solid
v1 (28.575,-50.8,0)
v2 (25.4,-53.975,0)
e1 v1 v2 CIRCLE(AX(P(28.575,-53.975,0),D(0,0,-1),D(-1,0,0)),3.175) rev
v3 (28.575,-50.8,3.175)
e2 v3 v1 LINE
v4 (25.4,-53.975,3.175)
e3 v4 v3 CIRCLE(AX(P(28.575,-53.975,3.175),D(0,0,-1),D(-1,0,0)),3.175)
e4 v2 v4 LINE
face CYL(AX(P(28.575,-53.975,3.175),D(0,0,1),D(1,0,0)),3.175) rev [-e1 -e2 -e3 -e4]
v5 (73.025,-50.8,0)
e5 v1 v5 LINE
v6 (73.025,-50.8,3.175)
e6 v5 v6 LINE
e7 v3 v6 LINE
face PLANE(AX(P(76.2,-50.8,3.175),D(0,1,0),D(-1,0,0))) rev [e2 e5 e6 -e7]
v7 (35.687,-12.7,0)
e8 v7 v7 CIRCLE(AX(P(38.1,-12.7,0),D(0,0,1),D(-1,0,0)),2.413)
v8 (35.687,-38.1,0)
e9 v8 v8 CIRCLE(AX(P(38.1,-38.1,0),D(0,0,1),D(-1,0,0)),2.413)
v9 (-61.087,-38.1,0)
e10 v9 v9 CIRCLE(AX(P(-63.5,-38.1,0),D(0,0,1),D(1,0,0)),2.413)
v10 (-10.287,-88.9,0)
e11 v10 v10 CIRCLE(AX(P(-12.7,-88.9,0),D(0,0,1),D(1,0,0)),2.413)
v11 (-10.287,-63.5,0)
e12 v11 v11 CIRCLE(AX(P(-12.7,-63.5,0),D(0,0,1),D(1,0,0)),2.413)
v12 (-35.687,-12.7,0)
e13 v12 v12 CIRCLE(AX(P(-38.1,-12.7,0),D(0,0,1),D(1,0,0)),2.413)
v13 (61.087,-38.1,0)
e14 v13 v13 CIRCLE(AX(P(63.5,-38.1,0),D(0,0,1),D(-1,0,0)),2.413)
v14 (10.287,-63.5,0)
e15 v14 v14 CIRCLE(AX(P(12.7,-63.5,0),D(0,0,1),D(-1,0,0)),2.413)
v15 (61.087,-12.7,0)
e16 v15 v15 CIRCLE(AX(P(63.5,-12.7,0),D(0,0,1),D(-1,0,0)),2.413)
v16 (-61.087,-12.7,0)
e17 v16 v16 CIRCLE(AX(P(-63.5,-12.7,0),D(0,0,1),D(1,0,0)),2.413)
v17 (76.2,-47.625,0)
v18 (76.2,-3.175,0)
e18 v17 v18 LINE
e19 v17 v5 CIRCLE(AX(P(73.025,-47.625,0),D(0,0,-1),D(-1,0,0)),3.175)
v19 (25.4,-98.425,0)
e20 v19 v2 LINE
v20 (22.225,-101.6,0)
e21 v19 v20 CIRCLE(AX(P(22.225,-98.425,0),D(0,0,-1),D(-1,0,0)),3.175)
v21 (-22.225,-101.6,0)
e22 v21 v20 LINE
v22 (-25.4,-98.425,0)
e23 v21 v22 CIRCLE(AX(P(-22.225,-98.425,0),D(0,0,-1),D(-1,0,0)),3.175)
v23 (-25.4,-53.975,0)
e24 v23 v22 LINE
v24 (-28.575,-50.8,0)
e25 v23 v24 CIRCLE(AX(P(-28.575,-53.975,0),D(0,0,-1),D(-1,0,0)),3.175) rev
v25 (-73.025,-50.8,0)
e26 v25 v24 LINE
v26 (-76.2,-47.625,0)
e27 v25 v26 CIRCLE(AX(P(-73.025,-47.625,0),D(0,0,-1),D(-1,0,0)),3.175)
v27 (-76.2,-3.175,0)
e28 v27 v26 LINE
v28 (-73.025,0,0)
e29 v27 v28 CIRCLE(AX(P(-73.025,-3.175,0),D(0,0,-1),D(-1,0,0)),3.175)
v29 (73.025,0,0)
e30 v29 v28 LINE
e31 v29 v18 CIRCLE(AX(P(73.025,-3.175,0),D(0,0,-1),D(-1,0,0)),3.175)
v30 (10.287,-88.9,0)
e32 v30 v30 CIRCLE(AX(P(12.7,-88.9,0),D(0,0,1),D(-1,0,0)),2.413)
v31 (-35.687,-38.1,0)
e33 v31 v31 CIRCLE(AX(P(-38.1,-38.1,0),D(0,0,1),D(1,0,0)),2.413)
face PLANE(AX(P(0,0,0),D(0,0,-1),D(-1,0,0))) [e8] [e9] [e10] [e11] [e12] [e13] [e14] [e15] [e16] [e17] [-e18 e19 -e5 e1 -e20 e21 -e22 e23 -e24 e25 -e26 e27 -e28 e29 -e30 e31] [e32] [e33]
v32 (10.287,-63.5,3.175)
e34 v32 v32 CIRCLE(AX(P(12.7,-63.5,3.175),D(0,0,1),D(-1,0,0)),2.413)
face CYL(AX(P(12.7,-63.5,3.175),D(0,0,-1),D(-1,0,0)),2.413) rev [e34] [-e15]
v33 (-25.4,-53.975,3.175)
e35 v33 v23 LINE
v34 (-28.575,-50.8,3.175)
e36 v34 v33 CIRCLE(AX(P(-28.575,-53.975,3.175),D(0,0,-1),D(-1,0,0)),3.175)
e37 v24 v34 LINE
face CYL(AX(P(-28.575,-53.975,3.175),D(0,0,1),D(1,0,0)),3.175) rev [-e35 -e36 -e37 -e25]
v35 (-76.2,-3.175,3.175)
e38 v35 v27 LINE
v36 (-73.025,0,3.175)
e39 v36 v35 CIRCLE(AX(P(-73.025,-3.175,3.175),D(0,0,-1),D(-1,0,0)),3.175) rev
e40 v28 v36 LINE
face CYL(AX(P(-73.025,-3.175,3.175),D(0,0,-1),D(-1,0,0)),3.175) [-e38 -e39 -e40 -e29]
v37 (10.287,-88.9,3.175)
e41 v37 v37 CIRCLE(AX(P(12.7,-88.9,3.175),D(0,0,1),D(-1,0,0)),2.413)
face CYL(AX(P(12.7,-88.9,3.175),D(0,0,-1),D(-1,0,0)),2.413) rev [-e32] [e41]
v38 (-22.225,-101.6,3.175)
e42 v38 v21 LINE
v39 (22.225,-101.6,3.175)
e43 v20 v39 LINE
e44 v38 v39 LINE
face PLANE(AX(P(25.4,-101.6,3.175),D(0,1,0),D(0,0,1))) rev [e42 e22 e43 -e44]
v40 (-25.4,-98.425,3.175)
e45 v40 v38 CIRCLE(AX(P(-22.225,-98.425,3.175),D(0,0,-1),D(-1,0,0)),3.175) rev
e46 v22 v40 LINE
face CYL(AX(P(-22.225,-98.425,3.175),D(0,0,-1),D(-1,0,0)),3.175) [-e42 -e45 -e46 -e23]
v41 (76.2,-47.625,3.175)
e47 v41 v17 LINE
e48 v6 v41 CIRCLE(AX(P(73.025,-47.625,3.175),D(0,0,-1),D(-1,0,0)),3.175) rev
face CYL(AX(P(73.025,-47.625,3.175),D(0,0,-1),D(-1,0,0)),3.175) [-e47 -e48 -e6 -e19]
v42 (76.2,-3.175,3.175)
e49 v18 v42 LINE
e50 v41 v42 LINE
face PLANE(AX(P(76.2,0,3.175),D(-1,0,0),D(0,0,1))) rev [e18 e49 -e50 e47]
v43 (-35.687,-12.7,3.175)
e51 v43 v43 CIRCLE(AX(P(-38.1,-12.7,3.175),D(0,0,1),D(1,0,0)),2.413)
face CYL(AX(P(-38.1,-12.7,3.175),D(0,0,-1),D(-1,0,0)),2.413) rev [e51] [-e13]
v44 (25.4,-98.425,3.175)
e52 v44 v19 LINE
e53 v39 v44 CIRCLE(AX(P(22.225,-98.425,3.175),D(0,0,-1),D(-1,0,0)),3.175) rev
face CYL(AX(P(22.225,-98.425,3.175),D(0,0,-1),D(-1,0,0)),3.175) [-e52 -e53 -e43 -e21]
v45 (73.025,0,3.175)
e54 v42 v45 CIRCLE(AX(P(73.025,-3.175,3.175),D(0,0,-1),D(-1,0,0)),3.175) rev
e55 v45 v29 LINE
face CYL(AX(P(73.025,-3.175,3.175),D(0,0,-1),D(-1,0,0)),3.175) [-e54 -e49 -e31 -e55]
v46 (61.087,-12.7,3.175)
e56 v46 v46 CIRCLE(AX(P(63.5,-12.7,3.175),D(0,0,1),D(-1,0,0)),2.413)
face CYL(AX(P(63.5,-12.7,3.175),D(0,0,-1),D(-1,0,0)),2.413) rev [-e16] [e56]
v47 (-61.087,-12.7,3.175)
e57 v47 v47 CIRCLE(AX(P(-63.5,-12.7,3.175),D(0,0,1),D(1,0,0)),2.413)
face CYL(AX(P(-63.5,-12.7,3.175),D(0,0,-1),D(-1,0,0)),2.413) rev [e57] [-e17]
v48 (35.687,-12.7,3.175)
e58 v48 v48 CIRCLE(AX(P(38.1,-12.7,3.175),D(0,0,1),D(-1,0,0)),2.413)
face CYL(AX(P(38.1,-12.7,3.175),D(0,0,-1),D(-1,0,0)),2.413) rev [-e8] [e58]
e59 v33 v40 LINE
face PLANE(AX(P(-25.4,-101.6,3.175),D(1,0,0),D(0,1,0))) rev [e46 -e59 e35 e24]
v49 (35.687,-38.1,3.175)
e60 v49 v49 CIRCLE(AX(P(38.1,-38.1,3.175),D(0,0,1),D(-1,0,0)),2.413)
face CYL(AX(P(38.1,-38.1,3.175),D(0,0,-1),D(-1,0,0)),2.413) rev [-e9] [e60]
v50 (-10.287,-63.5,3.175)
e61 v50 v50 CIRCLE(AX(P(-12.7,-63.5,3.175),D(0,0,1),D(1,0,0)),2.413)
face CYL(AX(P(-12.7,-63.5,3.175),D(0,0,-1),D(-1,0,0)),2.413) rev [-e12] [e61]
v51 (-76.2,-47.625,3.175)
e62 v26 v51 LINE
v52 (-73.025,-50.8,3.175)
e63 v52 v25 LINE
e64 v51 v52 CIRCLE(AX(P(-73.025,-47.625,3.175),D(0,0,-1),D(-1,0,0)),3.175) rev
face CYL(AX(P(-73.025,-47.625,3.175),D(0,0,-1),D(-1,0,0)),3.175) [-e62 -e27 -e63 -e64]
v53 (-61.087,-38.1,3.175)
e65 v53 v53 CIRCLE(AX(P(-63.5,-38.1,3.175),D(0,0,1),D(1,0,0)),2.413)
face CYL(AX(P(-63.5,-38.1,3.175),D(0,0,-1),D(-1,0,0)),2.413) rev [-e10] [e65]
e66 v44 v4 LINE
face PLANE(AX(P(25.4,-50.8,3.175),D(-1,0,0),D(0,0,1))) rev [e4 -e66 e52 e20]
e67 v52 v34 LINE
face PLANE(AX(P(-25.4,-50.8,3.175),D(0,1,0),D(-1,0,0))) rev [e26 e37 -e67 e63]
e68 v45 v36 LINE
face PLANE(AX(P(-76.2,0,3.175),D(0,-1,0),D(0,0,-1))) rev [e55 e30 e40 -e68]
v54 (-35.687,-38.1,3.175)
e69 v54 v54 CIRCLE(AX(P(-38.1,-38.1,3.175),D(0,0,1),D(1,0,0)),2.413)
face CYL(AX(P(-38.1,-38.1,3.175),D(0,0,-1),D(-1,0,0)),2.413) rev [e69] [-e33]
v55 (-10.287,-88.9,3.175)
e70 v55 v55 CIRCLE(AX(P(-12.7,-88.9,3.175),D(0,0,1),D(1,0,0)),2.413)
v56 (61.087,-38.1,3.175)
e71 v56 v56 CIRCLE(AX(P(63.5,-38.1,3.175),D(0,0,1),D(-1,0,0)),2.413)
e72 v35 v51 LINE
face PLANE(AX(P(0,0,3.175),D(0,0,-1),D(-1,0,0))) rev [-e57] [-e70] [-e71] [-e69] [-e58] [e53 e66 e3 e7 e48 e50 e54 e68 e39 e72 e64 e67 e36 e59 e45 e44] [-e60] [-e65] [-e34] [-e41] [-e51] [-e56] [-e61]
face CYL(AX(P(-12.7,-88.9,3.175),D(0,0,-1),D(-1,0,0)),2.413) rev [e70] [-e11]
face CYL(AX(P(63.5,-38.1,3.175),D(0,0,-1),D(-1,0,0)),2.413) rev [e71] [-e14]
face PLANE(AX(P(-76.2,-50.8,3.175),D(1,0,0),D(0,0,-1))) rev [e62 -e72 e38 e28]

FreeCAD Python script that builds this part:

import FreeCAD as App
import Part
import Sketcher
Q = App.Units.Quantity


def edges_at(feature, points):
    """Names of the edges that pass closest to the given points."""
    edges = feature.Shape.Edges
    near = lambda p: min(range(len(edges)), key=lambda i: edges[i].distToShape(Part.Vertex(*p))[0])
    return sorted({f"Edge{near(p) + 1}" for p in points})


def add_polygon(sketch, points):
    """Adds a closed chain of lines whose ends are joined by coincident constraints."""
    first, n = sketch.GeometryCount, len(points)
    for a, b in zip(points, points[1:] + points[:1]):
        sketch.addGeometry(Part.LineSegment(App.Vector(*a, 0), App.Vector(*b, 0)), False)
    for i in range(n):
        sketch.addConstraint(Sketcher.Constraint("Coincident", first + i, 2, first + (i + 1) % n, 1))

doc = App.newDocument("Part")
params = doc.addObject("Spreadsheet::Sheet", "Params")
for row, (alias, value) in enumerate([
    ("sketch1_diameter", "0.19 in"),
    ("sketch1_width", "6 in"),
    ("pad1_length", "0.125 in"),
    ("fillet_radius", "0.125 in"),
], start=1):
    params.set(f"A{row}", alias)
    params.set(f"B{row}", "=" + value)
    params.setAlias(f"B{row}", alias)

body = doc.addObject("PartDesign::Body", "Body")

# Sketch on XY plane
sketch1 = body.newObject("Sketcher::SketchObject", "Sketch")
sketch1.AttachmentSupport = (doc.getObject("XY_Plane"), [""])
sketch1.MapMode = "FlatFace"
add_polygon(sketch1, [(76.2, 0), (-76.2, 0), (-76.2, -50.8), (-25.4, -50.8), (-25.4, -101.6), (25.4, -101.6), (25.4, -50.8), (76.2, -50.8)])  # lines 0-7
sketch1.addGeometry(Part.Circle(App.Vector(12.7, -88.9, 0), App.Vector(0, 0, 1), 2.4), False)  # 8
sketch1.addGeometry(Part.Circle(App.Vector(12.7, -63.5, 0), App.Vector(0, 0, 1), 2.4), False)  # 9
sketch1.addGeometry(Part.Circle(App.Vector(-12.7, -88.9, 0), App.Vector(0, 0, 1), 2.4), False)  # 10
sketch1.addGeometry(Part.Circle(App.Vector(-12.7, -63.5, 0), App.Vector(0, 0, 1), 2.4), False)  # 11
sketch1.addGeometry(Part.Circle(App.Vector(63.5, -38.1, 0), App.Vector(0, 0, 1), 2.4), False)  # 12
sketch1.addGeometry(Part.Circle(App.Vector(38.1, -38.1, 0), App.Vector(0, 0, 1), 2.4), False)  # 13
sketch1.addGeometry(Part.Circle(App.Vector(63.5, -12.7, 0), App.Vector(0, 0, 1), 2.4), False)  # 14
sketch1.addGeometry(Part.Circle(App.Vector(38.1, -12.7, 0), App.Vector(0, 0, 1), 2.4), False)  # 15
sketch1.addGeometry(Part.Circle(App.Vector(-38.1, -38.1, 0), App.Vector(0, 0, 1), 2.4), False)  # 16
sketch1.addGeometry(Part.Circle(App.Vector(-63.5, -38.1, 0), App.Vector(0, 0, 1), 2.4), False)  # 17
sketch1.addGeometry(Part.Circle(App.Vector(-38.1, -12.7, 0), App.Vector(0, 0, 1), 2.4), False)  # 18
sketch1.addGeometry(Part.Circle(App.Vector(-63.5, -12.7, 0), App.Vector(0, 0, 1), 2.4), False)  # 19
sketch1.addConstraint([
    Sketcher.Constraint("Horizontal", 0),
    Sketcher.Constraint("Vertical", 1),
    Sketcher.Constraint("Horizontal", 2),
    Sketcher.Constraint("Vertical", 3),
    Sketcher.Constraint("Horizontal", 4),
    Sketcher.Constraint("Vertical", 5),
    Sketcher.Constraint("Horizontal", 6),
    Sketcher.Constraint("Vertical", 7),
    Sketcher.Constraint("Equal", 8, 9),
    Sketcher.Constraint("Equal", 9, 10),
    Sketcher.Constraint("Equal", 10, 11),
    Sketcher.Constraint("Equal", 11, 12),
    Sketcher.Constraint("Equal", 12, 13),
    Sketcher.Constraint("Equal", 13, 14),
    Sketcher.Constraint("Equal", 14, 15),
    Sketcher.Constraint("Equal", 15, 16),
    Sketcher.Constraint("Equal", 16, 17),
    Sketcher.Constraint("Equal", 17, 18),
    Sketcher.Constraint("Equal", 18, 19),
    Sketcher.Constraint("Symmetric", 0, 2, 7, 2, -1, 1),
    Sketcher.Constraint("Symmetric", 8, 3, 10, 3, -2),
    Sketcher.Constraint("Symmetric", 9, 3, 11, 3, -2),
    Sketcher.Constraint("Symmetric", 13, 3, 16, 3, -2),
    Sketcher.Constraint("Symmetric", 12, 3, 17, 3, -2),
    Sketcher.Constraint("Symmetric", 15, 3, 18, 3, -2),
    Sketcher.Constraint("Symmetric", 14, 3, 19, 3, -2),
    Sketcher.Constraint("Symmetric", 2, 2, 5, 2, -2),
    Sketcher.Constraint("Horizontal", 12, 3, 13, 3),
    Sketcher.Constraint("Horizontal", 14, 3, 15, 3),
    Sketcher.Constraint("Vertical", 8, 3, 9, 3),
    Sketcher.Constraint("Vertical", 12, 3, 14, 3),
    Sketcher.Constraint("Vertical", 13, 3, 15, 3),
    Sketcher.Constraint("Equal", 2, 4),
    Sketcher.Constraint("Equal", 6, 1),
    Sketcher.Constraint("Equal", 1, 3),
    Sketcher.Constraint("Diameter", 8, Q("0.19 in")),
    Sketcher.Constraint("DistanceX", 0, 2, 0, 1, Q("6 in")),
    Sketcher.Constraint("DistanceY", 8, 3, 9, 3, Q("1 in")),
    Sketcher.Constraint("DistanceX", 10, 3, 8, 3, Q("1 in")),
    Sketcher.Constraint("DistanceX", 9, 3, 12, 3, Q("2 in")),
    Sketcher.Constraint("DistanceY", 9, 3, 12, 3, Q("1 in")),
    Sketcher.Constraint("DistanceX", 13, 3, 12, 3, Q("1 in")),
    Sketcher.Constraint("DistanceY", 12, 3, 14, 3, Q("1 in")),
    Sketcher.Constraint("DistanceY", 8, 3, -1, 1, Q("3.5 in")),
])
sketch1.setExpression("Constraints[43]", "Params.sketch1_diameter")
sketch1.setExpression("Constraints[44]", "Params.sketch1_width")
pad1 = body.newObject("PartDesign::Pad", "Pad")
pad1.Profile = sketch1
pad1.setExpression("Length", "Params.pad1_length")
doc.recompute()

fillet = body.newObject("PartDesign::Fillet", "Fillet")
fillet.Base = (pad1, edges_at(pad1, [
    (25.4, -101.6, 1.587),
    (-25.4, -101.6, 1.587),
    (-25.4, -50.8, 1.587),
    (-76.2, -50.8, 1.587),
    (-76.2, 0, 1.587),
    (76.2, 0, 1.587),
    (76.2, -50.8, 1.587),
    (25.4, -50.8, 1.587),
]))
fillet.setExpression("Radius", "Params.fillet_radius")

doc.recompute()
